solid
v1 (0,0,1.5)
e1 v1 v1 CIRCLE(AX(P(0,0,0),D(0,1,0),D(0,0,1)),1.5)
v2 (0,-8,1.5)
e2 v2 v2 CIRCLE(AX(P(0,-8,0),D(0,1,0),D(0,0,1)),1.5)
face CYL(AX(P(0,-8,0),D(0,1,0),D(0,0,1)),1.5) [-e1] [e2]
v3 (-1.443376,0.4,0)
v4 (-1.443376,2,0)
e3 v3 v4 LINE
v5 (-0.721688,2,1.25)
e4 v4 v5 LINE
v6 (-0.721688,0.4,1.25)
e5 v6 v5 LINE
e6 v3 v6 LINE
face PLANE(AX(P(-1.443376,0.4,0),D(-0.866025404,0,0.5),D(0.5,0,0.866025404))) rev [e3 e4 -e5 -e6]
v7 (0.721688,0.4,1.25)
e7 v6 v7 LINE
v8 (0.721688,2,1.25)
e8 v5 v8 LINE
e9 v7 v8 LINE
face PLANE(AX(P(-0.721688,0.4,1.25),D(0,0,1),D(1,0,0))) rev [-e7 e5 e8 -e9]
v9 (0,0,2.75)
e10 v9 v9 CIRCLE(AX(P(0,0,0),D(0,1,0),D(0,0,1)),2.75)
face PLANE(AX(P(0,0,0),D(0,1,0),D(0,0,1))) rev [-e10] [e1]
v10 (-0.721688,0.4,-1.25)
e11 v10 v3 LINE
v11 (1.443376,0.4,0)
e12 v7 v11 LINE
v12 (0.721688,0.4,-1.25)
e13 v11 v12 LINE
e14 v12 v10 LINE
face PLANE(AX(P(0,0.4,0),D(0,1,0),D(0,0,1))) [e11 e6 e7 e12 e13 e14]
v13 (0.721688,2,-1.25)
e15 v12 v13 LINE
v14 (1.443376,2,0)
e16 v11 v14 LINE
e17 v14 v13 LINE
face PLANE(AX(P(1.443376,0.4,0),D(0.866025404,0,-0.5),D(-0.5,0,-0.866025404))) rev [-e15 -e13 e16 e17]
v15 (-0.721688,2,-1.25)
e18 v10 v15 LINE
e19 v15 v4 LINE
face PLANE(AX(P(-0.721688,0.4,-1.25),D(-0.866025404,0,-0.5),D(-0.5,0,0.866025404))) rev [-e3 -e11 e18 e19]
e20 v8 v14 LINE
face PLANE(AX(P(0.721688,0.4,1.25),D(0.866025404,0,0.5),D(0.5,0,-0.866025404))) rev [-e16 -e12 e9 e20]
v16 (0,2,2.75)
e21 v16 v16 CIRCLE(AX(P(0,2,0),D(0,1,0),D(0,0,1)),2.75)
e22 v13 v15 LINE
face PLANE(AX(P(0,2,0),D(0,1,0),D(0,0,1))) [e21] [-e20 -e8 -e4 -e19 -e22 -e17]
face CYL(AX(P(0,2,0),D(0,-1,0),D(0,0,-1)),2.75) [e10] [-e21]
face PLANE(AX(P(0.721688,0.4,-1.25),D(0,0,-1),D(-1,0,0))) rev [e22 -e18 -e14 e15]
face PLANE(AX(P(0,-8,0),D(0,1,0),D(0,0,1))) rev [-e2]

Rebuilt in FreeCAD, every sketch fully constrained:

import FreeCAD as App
import Part
import Sketcher

V = App.Vector
Q = App.Units.Quantity

doc = App.newDocument("Part")
body = doc.addObject("PartDesign::Body", "Body")

sketch1 = doc.addObject("Sketcher::SketchObject", "Sketch")
body.addObject(sketch1)
sketch1.AttachmentSupport = (doc.XZ_Plane, [""])
sketch1.MapMode = "FlatFace"
sketch1.addGeometry(Part.Circle(V(0, 0, 0), V(0, 0, 1), 2.8), False)
sketch1.addConstraint([
    Sketcher.Constraint("Coincident", 0, 3, -1, 1),
    Sketcher.Constraint("Diameter", 0, 5.5),
])
pad1 = doc.addObject("PartDesign::Pad", "Pad")
body.addObject(pad1)
pad1.Profile = sketch1
pad1.Length = 2
pad1.Reversed = True

sketch2 = doc.addObject("Sketcher::SketchObject", "Sketch001")
body.addObject(sketch2)
sketch2.AttachmentSupport = (doc.XZ_Plane, [""])
sketch2.MapMode = "FlatFace"
sketch2.addGeometry(Part.Circle(V(0, 0, 0), V(0, 0, 1), 1.5), False)
sketch2.addConstraint([
    Sketcher.Constraint("Coincident", 0, 3, -1, 1),
    Sketcher.Constraint("Diameter", 0, 3.0),
])
pad2 = doc.addObject("PartDesign::Pad", "Pad001")
body.addObject(pad2)
pad2.Profile = sketch2
pad2.Length = 8

sketch3 = doc.addObject("Sketcher::SketchObject", "Sketch002")
body.addObject(sketch3)
sketch3.AttachmentSupport = (doc.XZ_Plane, [""])
sketch3.MapMode = "FlatFace"
sketch3.AttachmentOffset = App.Placement(V(0, 0, -2), App.Rotation())
sketch3.addGeometry([
    Part.LineSegment(V(1.4, 0, 0), V(0.7, -1.2, 0)),
    Part.LineSegment(V(0.7, -1.2, 0), V(-0.7, -1.2, 0)),
    Part.LineSegment(V(-0.7, -1.2, 0), V(-1.4, 0, 0)),
    Part.LineSegment(V(-1.4, 0, 0), V(-0.7, 1.2, 0)),
    Part.LineSegment(V(-0.7, 1.2, 0), V(0.7, 1.2, 0)),
    Part.LineSegment(V(0.7, 1.2, 0), V(1.4, 0, 0)),
], False)
sketch3.addConstraint([
    Sketcher.Constraint("Coincident", 0, 2, 1, 1),
    Sketcher.Constraint("Coincident", 1, 2, 2, 1),
    Sketcher.Constraint("Coincident", 2, 2, 3, 1),
    Sketcher.Constraint("Coincident", 3, 2, 4, 1),
    Sketcher.Constraint("Coincident", 4, 2, 5, 1),
    Sketcher.Constraint("Coincident", 5, 2, 0, 1),
    Sketcher.Constraint("Horizontal", 1),
    Sketcher.Constraint("Horizontal", 4),
    Sketcher.Constraint("Symmetric", 0, 2, 3, 2, -1, 1),
    Sketcher.Constraint("Symmetric", 2, 2, 5, 2, -1, 1),
    Sketcher.Constraint("PointOnObject", 2, 2, -1),
    Sketcher.Constraint("Parallel", 2, 5),
    Sketcher.Constraint("Vertical", 1, 2, 3, 2),
    Sketcher.Constraint("Angle", 0, Q("-120 deg")),
    Sketcher.Constraint("DistanceY", 1, 2, 3, 2, 2.5),
    Sketcher.Constraint("DistanceX", 1, 2, 1, 1, 1.443376),
])
pocket1 = doc.addObject("PartDesign::Pocket", "Pocket")
body.addObject(pocket1)
pocket1.Profile = sketch3
pocket1.Length = 1.6
pocket1.Reversed = True

doc.recompute()
